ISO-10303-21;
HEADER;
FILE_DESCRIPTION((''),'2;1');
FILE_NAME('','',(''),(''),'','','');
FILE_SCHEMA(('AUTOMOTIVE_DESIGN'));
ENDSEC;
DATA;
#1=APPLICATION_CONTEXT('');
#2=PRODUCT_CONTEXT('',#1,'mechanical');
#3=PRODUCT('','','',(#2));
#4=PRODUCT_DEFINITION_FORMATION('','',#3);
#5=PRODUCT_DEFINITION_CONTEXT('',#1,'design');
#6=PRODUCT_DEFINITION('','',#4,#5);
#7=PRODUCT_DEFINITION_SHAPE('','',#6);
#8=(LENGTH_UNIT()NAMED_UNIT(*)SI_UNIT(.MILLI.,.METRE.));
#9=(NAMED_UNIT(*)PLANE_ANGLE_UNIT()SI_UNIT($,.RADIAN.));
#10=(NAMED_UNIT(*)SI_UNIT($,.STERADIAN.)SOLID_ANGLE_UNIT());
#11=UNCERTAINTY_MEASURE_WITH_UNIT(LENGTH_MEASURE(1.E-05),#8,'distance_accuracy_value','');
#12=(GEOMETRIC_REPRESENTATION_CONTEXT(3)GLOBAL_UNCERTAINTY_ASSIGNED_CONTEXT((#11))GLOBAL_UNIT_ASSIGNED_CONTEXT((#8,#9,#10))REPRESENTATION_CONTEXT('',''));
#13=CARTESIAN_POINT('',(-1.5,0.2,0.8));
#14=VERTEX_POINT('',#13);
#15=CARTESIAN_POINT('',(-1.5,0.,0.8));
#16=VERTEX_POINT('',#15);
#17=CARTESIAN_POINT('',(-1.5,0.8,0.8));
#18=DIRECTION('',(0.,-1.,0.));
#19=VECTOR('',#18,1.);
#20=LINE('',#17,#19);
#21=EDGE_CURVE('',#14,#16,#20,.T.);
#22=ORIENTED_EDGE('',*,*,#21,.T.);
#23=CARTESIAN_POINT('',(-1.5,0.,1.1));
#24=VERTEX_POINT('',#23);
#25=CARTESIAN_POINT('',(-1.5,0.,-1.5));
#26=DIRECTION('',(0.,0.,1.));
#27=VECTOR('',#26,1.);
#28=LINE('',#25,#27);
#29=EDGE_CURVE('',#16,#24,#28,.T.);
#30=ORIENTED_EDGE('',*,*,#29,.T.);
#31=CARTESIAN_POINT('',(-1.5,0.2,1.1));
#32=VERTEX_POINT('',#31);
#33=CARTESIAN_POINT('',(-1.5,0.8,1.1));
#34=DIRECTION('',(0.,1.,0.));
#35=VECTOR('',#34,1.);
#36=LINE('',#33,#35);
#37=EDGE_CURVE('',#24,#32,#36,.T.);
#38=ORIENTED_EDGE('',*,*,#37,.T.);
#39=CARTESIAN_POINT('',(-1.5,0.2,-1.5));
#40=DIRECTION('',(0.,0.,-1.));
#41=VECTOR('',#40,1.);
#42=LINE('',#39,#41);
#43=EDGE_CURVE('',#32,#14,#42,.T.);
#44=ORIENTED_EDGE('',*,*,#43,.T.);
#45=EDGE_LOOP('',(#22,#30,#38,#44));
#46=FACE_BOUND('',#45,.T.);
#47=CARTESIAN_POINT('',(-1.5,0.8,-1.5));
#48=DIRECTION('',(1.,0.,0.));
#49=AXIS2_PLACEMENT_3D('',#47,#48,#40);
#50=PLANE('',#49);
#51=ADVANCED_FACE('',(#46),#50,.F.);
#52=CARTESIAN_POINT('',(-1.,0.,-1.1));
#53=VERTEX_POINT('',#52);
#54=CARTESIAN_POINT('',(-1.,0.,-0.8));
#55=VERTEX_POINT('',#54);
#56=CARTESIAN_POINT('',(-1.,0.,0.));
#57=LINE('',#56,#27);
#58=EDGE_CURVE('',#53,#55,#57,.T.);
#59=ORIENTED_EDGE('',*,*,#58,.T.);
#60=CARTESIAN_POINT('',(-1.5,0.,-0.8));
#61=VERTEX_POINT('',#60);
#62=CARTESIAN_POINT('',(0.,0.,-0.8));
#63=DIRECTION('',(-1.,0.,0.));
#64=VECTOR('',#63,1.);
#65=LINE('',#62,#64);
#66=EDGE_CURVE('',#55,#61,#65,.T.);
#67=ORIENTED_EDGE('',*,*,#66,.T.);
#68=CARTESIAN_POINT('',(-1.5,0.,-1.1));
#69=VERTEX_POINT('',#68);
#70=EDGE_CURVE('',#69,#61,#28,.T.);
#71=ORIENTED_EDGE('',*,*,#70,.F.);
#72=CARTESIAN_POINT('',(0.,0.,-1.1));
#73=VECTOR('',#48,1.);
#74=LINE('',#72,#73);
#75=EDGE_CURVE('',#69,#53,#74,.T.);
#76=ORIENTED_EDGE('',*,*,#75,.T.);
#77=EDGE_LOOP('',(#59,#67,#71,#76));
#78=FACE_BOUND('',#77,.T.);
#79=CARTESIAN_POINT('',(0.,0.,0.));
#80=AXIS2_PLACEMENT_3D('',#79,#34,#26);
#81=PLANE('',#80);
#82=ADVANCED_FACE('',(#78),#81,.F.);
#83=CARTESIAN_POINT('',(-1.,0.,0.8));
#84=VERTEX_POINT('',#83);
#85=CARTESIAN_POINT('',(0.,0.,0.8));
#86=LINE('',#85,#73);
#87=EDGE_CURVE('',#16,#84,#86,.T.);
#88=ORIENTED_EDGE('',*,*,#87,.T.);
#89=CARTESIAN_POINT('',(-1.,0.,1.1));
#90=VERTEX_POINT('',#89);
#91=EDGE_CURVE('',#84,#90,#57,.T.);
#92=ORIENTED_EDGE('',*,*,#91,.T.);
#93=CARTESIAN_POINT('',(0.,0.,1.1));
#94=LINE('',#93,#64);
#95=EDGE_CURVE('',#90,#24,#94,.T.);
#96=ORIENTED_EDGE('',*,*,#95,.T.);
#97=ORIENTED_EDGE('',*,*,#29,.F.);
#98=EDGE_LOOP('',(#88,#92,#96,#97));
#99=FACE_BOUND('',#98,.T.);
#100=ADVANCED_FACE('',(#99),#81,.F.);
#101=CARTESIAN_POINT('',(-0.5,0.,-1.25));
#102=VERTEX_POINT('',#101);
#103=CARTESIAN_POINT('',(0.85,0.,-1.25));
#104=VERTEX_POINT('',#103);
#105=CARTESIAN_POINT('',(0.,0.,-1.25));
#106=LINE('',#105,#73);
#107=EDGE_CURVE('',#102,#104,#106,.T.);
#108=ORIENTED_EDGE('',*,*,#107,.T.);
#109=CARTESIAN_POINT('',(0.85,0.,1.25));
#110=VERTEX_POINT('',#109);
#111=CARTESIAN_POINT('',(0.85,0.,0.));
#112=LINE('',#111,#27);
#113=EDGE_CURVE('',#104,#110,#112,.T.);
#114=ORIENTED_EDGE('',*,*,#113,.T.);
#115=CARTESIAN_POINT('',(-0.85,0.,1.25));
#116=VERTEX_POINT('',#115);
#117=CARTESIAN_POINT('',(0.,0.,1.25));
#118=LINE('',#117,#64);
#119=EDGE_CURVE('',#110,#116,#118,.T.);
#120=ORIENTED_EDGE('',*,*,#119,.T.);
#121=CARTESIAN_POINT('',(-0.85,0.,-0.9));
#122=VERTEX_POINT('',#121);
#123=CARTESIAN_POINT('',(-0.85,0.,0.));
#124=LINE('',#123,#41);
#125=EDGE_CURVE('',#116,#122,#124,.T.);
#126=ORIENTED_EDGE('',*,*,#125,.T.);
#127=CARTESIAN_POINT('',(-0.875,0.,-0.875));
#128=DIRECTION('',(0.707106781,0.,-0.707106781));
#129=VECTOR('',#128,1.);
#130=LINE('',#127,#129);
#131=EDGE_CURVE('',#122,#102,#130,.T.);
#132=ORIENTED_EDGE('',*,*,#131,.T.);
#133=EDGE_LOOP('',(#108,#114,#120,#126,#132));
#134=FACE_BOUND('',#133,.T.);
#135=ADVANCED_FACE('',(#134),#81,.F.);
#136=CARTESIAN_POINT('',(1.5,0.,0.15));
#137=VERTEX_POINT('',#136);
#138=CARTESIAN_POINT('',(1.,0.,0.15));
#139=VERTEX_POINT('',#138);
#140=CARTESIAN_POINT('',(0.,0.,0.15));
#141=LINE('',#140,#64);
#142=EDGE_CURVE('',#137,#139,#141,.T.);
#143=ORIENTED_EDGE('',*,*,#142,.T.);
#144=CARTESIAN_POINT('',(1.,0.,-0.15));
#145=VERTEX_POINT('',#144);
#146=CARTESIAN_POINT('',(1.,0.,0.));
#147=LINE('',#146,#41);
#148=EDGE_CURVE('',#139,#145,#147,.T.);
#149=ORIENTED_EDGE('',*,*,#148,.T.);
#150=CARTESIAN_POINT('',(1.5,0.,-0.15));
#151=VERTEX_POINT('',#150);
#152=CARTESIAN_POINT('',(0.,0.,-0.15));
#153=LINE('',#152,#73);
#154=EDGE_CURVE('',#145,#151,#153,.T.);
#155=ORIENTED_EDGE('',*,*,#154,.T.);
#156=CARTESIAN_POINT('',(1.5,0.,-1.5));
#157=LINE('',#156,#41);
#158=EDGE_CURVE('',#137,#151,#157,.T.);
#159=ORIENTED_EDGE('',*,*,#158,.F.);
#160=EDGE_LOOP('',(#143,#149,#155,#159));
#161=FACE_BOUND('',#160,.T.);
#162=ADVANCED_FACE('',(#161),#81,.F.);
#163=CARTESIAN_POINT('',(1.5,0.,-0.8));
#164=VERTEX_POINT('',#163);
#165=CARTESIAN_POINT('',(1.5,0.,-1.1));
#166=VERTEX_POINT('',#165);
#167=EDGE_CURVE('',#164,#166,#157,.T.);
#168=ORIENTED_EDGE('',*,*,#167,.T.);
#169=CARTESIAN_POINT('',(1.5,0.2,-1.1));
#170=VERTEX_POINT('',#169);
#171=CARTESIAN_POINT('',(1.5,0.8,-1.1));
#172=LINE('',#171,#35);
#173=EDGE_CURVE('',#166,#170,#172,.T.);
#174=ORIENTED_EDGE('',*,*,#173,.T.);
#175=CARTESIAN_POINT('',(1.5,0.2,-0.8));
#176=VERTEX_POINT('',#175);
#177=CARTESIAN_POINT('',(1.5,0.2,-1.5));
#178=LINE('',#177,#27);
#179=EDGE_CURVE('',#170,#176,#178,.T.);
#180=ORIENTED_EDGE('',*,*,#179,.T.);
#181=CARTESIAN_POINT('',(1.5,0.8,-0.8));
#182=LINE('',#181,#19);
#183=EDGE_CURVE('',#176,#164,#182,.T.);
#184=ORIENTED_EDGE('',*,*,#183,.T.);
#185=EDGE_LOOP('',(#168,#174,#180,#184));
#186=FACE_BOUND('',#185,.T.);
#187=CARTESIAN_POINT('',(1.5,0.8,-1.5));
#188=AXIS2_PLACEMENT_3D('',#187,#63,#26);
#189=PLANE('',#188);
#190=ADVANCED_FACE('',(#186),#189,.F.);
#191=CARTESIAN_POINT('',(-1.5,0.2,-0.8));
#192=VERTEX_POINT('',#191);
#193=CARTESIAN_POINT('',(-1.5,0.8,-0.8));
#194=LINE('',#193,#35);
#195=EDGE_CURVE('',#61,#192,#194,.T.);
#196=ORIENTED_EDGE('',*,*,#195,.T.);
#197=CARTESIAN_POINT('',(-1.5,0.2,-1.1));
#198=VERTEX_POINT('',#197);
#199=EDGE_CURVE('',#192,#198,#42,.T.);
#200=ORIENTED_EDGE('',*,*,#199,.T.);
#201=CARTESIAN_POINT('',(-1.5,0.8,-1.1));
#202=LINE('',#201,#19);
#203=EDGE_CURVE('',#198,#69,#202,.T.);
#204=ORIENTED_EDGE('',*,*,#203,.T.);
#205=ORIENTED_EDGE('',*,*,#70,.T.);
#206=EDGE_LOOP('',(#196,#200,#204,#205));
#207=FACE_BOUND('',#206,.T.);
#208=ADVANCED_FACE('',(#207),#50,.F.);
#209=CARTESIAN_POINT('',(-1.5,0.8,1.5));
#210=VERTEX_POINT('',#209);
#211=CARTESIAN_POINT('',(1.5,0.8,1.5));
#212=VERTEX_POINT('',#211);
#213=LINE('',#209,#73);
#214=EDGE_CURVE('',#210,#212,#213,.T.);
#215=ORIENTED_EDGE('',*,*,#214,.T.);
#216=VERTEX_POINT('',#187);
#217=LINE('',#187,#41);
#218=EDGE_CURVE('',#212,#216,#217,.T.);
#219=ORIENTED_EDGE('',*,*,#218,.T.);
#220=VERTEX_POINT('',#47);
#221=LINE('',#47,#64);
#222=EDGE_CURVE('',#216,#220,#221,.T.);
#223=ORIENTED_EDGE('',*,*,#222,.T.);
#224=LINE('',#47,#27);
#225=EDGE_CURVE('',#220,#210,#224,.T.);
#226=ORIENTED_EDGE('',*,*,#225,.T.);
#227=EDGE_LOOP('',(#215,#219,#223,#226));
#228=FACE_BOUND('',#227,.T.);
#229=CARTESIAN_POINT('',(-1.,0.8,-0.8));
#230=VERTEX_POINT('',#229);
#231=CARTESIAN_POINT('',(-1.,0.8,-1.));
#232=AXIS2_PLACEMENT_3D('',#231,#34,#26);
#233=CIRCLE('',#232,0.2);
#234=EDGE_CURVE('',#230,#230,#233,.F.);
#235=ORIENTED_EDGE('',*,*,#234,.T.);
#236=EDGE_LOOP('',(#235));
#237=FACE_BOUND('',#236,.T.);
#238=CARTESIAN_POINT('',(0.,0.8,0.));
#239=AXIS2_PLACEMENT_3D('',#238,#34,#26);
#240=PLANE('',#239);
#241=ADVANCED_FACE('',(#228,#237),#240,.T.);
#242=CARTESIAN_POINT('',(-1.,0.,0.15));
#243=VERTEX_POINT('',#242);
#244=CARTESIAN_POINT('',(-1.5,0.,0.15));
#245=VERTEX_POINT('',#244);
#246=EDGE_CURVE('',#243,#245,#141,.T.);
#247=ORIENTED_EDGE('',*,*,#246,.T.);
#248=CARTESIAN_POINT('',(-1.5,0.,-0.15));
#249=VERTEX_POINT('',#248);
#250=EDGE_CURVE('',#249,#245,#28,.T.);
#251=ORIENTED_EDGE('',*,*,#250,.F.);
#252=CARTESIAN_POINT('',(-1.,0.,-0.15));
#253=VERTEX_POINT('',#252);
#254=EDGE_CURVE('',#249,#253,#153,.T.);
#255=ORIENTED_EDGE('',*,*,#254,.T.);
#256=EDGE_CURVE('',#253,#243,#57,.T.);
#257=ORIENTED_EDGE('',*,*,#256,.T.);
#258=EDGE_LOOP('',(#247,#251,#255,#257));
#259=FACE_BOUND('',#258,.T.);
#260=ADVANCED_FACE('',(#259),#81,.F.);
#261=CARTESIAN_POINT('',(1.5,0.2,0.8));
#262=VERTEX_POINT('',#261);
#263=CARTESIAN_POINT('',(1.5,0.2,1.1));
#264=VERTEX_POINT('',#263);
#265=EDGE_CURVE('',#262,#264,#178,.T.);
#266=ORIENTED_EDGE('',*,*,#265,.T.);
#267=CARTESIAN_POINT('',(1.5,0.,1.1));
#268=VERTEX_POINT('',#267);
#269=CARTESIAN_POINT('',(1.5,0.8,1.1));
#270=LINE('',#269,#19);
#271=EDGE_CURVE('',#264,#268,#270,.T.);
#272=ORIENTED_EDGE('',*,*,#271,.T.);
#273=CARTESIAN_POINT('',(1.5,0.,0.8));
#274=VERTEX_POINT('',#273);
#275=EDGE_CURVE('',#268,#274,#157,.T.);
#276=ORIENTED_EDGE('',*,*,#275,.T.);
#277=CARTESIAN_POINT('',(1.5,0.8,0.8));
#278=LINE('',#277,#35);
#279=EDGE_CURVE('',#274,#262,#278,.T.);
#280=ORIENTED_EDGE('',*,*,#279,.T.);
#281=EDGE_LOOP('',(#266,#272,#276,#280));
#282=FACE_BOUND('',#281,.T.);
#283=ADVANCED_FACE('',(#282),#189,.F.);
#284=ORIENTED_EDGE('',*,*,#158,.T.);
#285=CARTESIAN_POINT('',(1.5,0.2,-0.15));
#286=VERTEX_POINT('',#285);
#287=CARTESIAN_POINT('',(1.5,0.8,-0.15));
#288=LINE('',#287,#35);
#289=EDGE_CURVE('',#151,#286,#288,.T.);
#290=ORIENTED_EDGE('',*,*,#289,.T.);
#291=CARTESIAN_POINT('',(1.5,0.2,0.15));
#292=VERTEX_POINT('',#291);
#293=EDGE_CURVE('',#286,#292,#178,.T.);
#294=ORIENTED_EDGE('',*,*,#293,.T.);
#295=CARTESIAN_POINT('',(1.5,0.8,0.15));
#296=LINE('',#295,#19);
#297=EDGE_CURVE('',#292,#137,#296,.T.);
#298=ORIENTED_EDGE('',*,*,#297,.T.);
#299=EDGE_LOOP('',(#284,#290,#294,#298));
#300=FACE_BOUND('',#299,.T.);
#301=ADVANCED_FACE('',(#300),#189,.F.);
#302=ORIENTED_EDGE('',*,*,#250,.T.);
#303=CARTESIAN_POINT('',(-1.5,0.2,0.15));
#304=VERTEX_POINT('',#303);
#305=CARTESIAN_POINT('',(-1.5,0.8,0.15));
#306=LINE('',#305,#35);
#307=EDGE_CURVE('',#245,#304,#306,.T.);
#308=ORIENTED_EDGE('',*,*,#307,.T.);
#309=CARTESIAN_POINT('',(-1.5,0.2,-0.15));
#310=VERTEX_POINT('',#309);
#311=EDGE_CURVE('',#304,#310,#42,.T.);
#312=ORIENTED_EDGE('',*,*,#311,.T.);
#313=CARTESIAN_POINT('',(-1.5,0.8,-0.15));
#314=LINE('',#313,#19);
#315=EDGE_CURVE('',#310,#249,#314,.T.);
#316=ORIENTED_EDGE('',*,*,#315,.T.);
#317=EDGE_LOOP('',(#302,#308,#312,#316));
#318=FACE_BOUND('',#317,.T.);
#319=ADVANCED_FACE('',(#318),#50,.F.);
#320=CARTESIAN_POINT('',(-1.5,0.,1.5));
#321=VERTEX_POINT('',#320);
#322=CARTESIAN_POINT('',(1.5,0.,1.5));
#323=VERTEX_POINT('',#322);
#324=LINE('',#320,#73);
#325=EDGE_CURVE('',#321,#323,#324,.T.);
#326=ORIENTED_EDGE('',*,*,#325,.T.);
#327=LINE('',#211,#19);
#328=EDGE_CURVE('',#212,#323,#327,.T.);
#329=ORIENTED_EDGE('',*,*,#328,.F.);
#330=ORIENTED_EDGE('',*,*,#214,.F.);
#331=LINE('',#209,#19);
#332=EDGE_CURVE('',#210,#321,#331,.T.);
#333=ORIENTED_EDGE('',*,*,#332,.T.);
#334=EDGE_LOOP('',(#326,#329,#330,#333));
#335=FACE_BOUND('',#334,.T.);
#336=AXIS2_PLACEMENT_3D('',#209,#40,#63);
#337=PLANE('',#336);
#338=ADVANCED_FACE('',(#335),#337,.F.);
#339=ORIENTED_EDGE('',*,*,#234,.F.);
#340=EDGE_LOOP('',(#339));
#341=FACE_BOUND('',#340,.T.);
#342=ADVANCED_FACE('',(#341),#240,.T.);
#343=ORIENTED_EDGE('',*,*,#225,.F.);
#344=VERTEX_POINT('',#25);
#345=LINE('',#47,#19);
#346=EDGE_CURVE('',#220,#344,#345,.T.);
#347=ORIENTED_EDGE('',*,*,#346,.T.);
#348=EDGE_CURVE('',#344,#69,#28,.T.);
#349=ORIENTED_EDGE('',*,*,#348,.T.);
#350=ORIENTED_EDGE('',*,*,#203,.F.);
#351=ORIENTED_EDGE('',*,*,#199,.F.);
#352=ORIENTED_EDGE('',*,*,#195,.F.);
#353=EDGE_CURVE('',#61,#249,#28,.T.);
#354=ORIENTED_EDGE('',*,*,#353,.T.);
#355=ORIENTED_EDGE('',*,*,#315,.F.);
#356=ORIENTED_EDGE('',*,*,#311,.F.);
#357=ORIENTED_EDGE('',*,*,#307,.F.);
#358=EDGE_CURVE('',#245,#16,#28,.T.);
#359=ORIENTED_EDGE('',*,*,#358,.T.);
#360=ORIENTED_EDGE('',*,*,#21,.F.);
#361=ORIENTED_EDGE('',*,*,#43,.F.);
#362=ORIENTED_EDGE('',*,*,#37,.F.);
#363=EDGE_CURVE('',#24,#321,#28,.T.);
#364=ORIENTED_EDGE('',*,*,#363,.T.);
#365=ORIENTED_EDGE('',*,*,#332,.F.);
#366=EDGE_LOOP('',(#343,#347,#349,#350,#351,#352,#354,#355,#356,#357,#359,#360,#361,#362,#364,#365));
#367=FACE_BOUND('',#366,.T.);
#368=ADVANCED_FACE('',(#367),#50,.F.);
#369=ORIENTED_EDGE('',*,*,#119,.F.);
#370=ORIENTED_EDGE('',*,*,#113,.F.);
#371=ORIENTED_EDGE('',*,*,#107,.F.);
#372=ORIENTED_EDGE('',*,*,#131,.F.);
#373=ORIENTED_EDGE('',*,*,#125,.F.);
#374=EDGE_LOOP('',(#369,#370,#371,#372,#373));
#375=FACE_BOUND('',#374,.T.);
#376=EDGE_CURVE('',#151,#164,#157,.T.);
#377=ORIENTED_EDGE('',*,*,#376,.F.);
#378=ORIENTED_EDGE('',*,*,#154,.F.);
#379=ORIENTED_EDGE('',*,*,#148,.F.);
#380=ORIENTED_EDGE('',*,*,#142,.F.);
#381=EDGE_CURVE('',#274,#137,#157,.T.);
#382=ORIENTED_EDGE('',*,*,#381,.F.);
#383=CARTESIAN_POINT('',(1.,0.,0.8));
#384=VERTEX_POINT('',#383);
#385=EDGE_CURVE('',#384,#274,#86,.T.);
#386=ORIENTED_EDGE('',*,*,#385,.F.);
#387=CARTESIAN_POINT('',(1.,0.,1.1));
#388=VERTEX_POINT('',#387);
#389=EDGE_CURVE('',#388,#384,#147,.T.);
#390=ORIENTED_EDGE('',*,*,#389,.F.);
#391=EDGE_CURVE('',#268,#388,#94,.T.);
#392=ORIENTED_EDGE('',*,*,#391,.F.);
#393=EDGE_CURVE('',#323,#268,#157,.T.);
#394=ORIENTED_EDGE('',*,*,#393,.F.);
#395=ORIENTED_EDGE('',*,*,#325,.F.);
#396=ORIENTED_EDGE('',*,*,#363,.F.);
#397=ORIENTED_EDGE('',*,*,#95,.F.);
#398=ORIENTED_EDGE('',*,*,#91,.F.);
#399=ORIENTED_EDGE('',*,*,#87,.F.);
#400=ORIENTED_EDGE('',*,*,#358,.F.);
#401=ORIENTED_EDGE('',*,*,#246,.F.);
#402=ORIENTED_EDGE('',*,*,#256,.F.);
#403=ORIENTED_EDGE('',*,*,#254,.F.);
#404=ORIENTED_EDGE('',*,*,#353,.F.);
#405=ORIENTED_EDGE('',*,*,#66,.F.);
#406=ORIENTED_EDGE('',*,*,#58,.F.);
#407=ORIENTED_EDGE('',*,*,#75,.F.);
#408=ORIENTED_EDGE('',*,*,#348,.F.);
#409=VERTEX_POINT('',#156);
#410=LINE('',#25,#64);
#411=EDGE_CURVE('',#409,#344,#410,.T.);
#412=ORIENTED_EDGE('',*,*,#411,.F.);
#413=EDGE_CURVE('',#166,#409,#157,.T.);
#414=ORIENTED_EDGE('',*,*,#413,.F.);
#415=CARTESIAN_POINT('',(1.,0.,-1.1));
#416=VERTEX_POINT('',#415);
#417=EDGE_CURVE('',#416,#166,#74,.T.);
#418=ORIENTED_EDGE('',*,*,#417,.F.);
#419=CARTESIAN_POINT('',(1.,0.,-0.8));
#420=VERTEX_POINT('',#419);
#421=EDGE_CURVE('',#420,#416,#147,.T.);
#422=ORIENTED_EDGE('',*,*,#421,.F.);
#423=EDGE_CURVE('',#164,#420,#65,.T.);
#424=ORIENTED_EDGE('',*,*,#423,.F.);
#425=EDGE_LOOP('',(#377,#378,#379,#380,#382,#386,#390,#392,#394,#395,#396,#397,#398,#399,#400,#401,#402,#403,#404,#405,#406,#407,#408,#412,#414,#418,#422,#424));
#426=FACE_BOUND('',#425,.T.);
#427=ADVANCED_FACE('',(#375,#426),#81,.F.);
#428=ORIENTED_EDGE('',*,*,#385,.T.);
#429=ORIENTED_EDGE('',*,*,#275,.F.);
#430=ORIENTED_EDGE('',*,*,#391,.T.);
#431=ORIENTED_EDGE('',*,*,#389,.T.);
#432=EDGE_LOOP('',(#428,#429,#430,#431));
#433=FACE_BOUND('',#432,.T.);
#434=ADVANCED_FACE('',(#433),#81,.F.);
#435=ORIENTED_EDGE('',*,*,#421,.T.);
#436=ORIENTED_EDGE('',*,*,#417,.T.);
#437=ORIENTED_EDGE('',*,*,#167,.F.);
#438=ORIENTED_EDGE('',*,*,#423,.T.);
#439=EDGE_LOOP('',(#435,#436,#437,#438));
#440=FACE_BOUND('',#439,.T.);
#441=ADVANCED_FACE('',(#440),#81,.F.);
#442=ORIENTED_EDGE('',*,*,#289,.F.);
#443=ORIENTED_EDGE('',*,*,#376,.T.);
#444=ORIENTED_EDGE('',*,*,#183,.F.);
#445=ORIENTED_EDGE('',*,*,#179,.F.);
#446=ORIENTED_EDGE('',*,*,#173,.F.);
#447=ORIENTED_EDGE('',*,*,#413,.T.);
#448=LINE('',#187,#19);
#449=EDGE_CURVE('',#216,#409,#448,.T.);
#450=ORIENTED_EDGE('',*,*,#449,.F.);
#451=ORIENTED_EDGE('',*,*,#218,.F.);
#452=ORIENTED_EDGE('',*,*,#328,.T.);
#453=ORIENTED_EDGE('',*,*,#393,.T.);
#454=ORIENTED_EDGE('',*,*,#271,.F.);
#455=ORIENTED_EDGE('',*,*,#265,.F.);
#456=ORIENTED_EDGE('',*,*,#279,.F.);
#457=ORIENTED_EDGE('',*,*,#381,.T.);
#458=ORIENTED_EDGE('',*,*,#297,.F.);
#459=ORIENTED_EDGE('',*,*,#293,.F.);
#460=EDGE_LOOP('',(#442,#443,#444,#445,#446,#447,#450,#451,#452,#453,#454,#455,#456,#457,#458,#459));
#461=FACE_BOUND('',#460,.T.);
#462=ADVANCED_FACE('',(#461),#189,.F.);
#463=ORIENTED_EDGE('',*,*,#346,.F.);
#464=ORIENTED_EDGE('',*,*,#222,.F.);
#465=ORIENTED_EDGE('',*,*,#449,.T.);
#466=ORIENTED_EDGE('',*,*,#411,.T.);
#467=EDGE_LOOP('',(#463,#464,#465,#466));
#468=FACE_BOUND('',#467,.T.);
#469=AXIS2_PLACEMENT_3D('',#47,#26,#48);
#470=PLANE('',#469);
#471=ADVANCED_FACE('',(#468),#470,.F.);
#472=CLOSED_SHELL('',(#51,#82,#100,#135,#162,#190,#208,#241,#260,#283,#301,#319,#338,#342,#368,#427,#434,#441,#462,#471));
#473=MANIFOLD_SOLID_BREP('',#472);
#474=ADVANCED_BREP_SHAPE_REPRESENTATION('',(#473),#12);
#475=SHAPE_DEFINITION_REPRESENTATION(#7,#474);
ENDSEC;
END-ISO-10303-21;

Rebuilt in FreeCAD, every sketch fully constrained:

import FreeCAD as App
import Part
import Sketcher
from FreeCAD import Vector


def add_polygon(sketch, points):
    """Adds a closed chain of lines whose ends are joined by coincident constraints."""
    first, n = sketch.GeometryCount, len(points)
    for a, b in zip(points, points[1:] + points[:1]):
        sketch.addGeometry(Part.LineSegment(App.Vector(*a, 0), App.Vector(*b, 0)), False)
    for i in range(n):
        sketch.addConstraint(Sketcher.Constraint("Coincident", first + i, 2, first + (i + 1) % n, 1))

doc = App.newDocument("Part")
body = doc.addObject("PartDesign::Body", "Body")

# Sketch on XZ plane
sketch1 = doc.addObject("Sketcher::SketchObject", "Sketch")
body.addObject(sketch1)
sketch1.AttachmentSupport = (doc.XZ_Plane, [""])
sketch1.MapMode = "FlatFace"
add_polygon(sketch1, [(-1.5, -1.5), (-1.5, 1.5), (1.5, 1.5), (1.5, -1.5)])  # lines 0-3
sketch1.addConstraint(Sketcher.Constraint("Vertical", 0))
sketch1.addConstraint(Sketcher.Constraint("Horizontal", 1))
sketch1.addConstraint(Sketcher.Constraint("Vertical", 2))
sketch1.addConstraint(Sketcher.Constraint("Horizontal", 3))
sketch1.addConstraint(Sketcher.Constraint("Symmetric", 0, 2, 2, 2, -1, 1))
sketch1.addConstraint(Sketcher.Constraint("Equal", 3, 0))
sketch1.addConstraint(Sketcher.Constraint("DistanceX", 1, 1, 1, 2, 3.0))
pad1 = doc.addObject("PartDesign::Pad", "Pad")
body.addObject(pad1)
pad1.Profile = sketch1
pad1.Length = 0.8
pad1.Reversed = True

doc.recompute()
